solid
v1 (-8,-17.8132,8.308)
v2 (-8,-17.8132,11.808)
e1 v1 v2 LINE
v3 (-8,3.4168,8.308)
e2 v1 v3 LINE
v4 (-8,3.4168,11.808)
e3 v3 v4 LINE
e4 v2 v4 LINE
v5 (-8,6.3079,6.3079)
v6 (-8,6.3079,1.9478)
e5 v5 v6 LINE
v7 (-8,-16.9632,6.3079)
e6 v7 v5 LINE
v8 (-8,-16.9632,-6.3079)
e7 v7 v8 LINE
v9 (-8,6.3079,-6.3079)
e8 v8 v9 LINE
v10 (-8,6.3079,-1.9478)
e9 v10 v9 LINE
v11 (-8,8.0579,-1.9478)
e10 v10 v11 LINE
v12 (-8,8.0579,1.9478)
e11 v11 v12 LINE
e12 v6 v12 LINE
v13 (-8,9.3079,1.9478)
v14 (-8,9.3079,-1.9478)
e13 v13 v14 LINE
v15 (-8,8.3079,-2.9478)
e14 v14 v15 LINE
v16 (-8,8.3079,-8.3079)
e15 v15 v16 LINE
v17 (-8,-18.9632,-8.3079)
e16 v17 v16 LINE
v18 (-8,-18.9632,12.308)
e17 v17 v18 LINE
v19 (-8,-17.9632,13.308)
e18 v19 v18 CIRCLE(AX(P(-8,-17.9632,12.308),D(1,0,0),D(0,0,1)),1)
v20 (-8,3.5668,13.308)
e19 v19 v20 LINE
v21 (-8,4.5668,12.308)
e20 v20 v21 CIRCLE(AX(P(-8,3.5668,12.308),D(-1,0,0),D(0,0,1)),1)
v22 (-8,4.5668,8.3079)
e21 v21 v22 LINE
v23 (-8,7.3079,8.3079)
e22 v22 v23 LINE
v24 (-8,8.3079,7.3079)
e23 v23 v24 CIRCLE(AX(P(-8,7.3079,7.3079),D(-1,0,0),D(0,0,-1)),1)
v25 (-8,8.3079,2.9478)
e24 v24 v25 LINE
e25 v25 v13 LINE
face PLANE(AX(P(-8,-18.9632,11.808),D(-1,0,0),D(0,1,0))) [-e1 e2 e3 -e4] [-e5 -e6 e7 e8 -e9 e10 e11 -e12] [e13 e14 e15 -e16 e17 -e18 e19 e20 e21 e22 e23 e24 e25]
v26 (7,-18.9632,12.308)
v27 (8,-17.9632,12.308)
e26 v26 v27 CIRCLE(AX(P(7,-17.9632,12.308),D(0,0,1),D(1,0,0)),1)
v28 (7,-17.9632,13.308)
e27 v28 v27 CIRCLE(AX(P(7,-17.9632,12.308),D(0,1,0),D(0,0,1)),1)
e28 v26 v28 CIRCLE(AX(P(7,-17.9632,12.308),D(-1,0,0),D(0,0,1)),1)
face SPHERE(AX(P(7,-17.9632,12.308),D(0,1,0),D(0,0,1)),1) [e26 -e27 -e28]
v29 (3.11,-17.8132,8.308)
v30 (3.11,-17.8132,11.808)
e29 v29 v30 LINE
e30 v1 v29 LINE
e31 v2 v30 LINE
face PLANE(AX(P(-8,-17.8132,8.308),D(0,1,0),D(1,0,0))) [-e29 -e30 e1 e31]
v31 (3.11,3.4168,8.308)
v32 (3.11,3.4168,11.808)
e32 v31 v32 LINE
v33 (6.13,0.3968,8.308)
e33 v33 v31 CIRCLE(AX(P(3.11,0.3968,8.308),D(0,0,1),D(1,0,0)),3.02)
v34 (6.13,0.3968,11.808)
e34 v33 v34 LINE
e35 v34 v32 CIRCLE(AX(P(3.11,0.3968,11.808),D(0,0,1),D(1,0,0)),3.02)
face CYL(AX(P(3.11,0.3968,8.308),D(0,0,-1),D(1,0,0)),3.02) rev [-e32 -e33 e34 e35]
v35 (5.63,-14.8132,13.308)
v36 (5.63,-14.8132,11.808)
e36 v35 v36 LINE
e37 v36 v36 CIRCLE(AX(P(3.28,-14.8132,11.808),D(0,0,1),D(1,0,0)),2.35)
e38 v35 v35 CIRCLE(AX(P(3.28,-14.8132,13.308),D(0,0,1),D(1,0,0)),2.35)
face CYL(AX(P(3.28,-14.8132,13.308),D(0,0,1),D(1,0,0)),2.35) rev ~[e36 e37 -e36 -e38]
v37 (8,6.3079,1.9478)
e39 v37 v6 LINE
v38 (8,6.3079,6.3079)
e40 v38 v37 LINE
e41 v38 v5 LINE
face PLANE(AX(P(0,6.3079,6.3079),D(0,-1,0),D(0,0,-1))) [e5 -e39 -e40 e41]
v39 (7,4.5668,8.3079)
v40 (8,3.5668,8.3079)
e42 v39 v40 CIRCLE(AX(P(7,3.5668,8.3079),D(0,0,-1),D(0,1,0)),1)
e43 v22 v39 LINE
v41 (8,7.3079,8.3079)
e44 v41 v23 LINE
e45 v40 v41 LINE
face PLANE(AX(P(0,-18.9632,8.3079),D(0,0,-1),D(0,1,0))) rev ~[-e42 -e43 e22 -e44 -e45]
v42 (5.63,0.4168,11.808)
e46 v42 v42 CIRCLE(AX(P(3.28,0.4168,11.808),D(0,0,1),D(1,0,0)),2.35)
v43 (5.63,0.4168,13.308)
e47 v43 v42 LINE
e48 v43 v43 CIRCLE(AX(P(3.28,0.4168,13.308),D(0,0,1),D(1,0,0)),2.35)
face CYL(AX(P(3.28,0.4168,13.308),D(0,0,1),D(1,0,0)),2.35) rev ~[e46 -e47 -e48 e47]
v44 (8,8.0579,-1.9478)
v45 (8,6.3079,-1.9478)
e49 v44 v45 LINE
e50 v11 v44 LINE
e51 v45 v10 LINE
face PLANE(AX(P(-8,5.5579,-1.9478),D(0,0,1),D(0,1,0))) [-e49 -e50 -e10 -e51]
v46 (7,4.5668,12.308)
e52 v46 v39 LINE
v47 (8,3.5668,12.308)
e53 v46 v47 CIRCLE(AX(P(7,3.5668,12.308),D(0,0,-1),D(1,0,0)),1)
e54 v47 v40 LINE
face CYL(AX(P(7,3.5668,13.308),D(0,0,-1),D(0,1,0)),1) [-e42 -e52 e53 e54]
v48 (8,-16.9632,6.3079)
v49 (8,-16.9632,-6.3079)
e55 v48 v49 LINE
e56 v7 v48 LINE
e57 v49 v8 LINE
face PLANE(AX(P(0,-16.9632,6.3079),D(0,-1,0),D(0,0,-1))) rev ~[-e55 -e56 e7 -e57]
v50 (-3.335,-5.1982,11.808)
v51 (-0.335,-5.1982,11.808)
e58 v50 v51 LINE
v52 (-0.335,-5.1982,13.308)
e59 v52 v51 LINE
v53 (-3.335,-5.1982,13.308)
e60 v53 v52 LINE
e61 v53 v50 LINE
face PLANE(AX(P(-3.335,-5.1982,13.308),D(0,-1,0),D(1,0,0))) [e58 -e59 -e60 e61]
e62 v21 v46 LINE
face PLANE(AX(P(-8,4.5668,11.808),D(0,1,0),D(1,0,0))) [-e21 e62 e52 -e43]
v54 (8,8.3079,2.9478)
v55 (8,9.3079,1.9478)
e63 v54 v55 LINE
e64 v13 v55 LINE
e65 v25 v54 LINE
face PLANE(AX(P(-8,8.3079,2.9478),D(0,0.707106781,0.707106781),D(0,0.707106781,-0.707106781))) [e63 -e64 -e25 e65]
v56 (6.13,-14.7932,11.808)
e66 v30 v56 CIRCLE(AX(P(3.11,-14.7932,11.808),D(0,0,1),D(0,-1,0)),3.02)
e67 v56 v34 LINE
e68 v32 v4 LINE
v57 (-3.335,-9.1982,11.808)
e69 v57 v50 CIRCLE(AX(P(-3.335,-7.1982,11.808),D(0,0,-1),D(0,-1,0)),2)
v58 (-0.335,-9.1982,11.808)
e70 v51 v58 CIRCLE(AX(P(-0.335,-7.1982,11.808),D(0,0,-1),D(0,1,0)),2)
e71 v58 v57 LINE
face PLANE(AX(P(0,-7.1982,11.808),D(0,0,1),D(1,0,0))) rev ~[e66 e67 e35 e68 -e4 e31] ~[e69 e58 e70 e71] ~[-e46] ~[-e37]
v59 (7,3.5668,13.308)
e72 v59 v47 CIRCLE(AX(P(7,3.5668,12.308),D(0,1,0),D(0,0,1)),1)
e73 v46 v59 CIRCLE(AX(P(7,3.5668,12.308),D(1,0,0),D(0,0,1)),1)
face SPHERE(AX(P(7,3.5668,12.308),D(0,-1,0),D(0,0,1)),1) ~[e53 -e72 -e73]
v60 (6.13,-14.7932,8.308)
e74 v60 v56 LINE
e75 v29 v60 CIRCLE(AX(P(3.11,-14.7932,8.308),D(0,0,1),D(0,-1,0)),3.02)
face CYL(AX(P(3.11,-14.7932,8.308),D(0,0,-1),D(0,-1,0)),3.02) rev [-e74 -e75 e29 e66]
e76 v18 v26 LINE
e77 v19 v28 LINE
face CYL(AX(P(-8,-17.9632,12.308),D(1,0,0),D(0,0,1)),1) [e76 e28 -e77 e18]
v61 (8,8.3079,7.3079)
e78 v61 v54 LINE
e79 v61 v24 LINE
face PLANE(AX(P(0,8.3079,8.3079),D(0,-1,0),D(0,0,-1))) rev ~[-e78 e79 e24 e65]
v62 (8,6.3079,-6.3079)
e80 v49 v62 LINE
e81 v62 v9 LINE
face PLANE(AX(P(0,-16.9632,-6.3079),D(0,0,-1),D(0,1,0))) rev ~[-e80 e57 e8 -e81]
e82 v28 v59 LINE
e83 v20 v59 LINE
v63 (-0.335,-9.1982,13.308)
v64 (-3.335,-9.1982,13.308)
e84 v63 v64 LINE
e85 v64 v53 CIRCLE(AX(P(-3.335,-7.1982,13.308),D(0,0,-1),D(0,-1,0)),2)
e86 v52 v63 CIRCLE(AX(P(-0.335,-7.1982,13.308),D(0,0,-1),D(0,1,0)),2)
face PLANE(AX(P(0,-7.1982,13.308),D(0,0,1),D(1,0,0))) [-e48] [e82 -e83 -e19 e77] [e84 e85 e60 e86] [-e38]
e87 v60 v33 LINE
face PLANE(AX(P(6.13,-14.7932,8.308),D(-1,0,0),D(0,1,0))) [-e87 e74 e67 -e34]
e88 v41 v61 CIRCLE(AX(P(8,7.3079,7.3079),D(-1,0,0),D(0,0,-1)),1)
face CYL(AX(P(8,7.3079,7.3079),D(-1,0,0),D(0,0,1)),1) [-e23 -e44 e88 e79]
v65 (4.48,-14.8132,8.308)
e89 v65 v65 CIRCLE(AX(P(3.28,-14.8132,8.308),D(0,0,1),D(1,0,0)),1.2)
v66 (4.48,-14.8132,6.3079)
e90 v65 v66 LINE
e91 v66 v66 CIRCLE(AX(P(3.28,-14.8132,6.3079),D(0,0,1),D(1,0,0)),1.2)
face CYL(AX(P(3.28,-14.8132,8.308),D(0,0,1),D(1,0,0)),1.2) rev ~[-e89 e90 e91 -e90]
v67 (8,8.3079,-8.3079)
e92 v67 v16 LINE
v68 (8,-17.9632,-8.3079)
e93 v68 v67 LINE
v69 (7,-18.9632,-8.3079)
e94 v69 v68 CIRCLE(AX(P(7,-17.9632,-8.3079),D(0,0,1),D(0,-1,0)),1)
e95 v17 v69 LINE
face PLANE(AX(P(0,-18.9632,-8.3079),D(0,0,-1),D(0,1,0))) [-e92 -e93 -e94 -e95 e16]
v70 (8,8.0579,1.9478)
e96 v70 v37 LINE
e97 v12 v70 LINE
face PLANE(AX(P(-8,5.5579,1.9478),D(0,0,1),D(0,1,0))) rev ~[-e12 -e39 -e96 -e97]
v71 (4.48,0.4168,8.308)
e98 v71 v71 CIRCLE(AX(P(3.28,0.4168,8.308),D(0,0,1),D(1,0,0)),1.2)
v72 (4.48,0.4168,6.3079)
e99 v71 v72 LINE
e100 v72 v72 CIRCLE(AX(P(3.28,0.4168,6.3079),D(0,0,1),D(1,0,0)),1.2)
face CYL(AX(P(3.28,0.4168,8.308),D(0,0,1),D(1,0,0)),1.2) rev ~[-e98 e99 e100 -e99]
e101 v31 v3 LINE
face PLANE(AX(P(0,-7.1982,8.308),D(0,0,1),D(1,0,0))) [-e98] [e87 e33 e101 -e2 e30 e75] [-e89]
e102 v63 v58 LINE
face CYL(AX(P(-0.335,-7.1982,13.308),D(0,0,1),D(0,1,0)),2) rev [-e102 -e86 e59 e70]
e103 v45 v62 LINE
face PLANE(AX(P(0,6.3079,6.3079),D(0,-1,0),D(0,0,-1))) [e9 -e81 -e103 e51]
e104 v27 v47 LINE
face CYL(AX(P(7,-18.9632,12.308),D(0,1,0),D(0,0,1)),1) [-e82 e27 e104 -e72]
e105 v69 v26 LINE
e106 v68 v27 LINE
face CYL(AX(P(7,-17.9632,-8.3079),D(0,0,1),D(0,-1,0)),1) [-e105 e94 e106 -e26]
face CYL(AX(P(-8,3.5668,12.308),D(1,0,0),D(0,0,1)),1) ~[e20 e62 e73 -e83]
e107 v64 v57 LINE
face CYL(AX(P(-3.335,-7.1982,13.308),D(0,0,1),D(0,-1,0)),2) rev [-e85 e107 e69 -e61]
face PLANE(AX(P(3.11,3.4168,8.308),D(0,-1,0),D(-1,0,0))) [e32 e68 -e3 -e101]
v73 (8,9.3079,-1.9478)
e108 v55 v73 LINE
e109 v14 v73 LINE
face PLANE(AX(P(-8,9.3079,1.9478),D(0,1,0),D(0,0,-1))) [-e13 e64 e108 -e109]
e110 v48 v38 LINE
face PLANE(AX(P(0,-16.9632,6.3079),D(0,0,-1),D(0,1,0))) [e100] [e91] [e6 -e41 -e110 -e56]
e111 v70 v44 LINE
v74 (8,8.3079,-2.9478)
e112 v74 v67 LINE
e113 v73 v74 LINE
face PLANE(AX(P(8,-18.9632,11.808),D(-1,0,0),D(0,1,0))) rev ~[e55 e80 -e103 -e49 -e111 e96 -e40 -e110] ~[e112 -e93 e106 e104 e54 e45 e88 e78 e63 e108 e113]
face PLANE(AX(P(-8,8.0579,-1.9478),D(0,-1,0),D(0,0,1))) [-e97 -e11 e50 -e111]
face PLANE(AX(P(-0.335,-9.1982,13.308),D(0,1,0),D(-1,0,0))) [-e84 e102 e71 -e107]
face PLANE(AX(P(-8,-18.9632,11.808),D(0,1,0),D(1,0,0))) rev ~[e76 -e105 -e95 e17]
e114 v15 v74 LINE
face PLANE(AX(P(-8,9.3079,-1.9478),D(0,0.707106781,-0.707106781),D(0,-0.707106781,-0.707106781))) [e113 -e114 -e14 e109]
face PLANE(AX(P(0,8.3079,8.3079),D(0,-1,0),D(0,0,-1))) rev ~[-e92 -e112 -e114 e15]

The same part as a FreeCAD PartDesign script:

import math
import FreeCAD as App
import Part
import Sketcher
from FreeCAD import Vector


def edges_at(feature, points):
    """Names of the edges that pass closest to the given points."""
    edges = feature.Shape.Edges
    near = lambda p: min(range(len(edges)), key=lambda i: edges[i].distToShape(Part.Vertex(*p))[0])
    return sorted({f"Edge{near(p) + 1}" for p in points})


def add_polygon(sketch, points):
    """Adds a closed chain of lines whose ends are joined by coincident constraints."""
    first, n = sketch.GeometryCount, len(points)
    for a, b in zip(points, points[1:] + points[:1]):
        sketch.addGeometry(Part.LineSegment(App.Vector(*a, 0), App.Vector(*b, 0)), False)
    for i in range(n):
        sketch.addConstraint(Sketcher.Constraint("Coincident", first + i, 2, first + (i + 1) % n, 1))

doc = App.newDocument("Part")
body = doc.addObject("PartDesign::Body", "Body")

sketch1 = doc.addObject("Sketcher::SketchObject", "Sketch")
body.addObject(sketch1)
sketch1.AttachmentSupport = (doc.YZ_Plane, [""])
sketch1.MapMode = "FlatFace"
add_polygon(sketch1, [(8, 8), (-19, 8), (-19, -8), (8, -8)])
add_polygon(sketch1, [(-17, -6), (-17, 6), (6, 6), (6, -6)])
sketch1.addConstraint([
    Sketcher.Constraint("Horizontal", 0),
    Sketcher.Constraint("Vertical", 1),
    Sketcher.Constraint("Horizontal", 2),
    Sketcher.Constraint("Vertical", 3),
    Sketcher.Constraint("Vertical", 4),
    Sketcher.Constraint("Horizontal", 5),
    Sketcher.Constraint("Vertical", 6),
    Sketcher.Constraint("Horizontal", 7),
    Sketcher.Constraint("DistanceX", 0, 2, 4, 2, 2.0),
    Sketcher.Constraint("DistanceY", 4, 2, 0, 2, 2.0),
    Sketcher.Constraint("DistanceX", 5, 2, 3, 2, 2.0),
    Sketcher.Constraint("DistanceY", 2, 2, 6, 2, 2.0),
    Sketcher.Constraint("DistanceX", 0, 2, 0, 1, 27.2711),
    Sketcher.Constraint("DistanceY", 1, 2, 1, 1, 16.6158),
    Sketcher.Constraint("DistanceX", 0, 2, -1, 1, 18.9632),
    Sketcher.Constraint("DistanceY", -1, 1, 0, 2, 8.3079),
])
pad1 = doc.addObject("PartDesign::Pad", "Pad")
body.addObject(pad1)
pad1.Profile = sketch1
pad1.Length = 16
pad1.Midplane = True

sketch2 = doc.addObject("Sketcher::SketchObject", "Sketch001")
body.addObject(sketch2)
sketch2.AttachmentSupport = (doc.YZ_Plane, [""])
sketch2.MapMode = "FlatFace"
sketch2.AttachmentOffset = App.Placement(Vector(0, 0, -8), App.Rotation())
add_polygon(sketch2, [(8.1, -1.9), (5.6, -1.9), (5.6, 1.9), (8.1, 1.9)])
sketch2.addConstraint([
    Sketcher.Constraint("Horizontal", 0),
    Sketcher.Constraint("Vertical", 1),
    Sketcher.Constraint("Horizontal", 2),
    Sketcher.Constraint("Vertical", 3),
    Sketcher.Constraint("DistanceX", 0, 2, 0, 1, 2.5),
    Sketcher.Constraint("DistanceY", 1, 1, 1, 2, 3.8956),
    Sketcher.Constraint("DistanceX", -1, 1, 0, 2, 5.5579),
    Sketcher.Constraint("DistanceY", 0, 2, -1, 1, 1.9478),
])
pocket1 = doc.addObject("PartDesign::Pocket", "Pocket")
body.addObject(pocket1)
pocket1.Profile = sketch2
pocket1.Type = "ThroughAll"
pocket1.Reversed = True

sketch3 = doc.addObject("Sketcher::SketchObject", "Sketch002")
body.addObject(sketch3)
sketch3.AttachmentSupport = (doc.XY_Plane, [""])
sketch3.MapMode = "FlatFace"
sketch3.AttachmentOffset = App.Placement(Vector(0, 0, 8.3079), App.Rotation())
add_polygon(sketch3, [(-8, 5), (-8, -19), (8, -19), (8, 5)])
sketch3.addConstraint([
    Sketcher.Constraint("Vertical", 0),
    Sketcher.Constraint("Horizontal", 1),
    Sketcher.Constraint("Vertical", 2),
    Sketcher.Constraint("Horizontal", 3),
    Sketcher.Constraint("DistanceX", 1, 1, 1, 2, 16.0),
    Sketcher.Constraint("DistanceX", 0, 2, -1, 1, 8.0),
    Sketcher.Constraint("DistanceY", 0, 2, 0, 1, 23.53),
    Sketcher.Constraint("DistanceY", 0, 2, -1, 1, 18.9632),
])
pad2 = doc.addObject("PartDesign::Pad", "Pad001")
body.addObject(pad2)
pad2.Profile = sketch3
pad2.Length = 0.0001

sketch4 = doc.addObject("Sketcher::SketchObject", "Sketch003")
body.addObject(sketch4)
sketch4.AttachmentSupport = (doc.XY_Plane, [""])
sketch4.MapMode = "FlatFace"
sketch4.AttachmentOffset = App.Placement(Vector(0, 0, 8.308), App.Rotation())
sketch4.addGeometry(Part.Circle(Vector(3.3, 0.4, 0), Vector(0, 0, 1), 1.2), False)
sketch4.addConstraint([
    Sketcher.Constraint("Diameter", 0, 2.4),
    Sketcher.Constraint("DistanceX", -1, 1, 0, 3, 3.28),
    Sketcher.Constraint("DistanceY", -1, 1, 0, 3, 0.4168),
])
pocket2 = doc.addObject("PartDesign::Pocket", "Pocket001")
body.addObject(pocket2)
pocket2.Profile = sketch4
pocket2.Type = "UpToFirst"

sketch5 = doc.addObject("Sketcher::SketchObject", "Sketch004")
body.addObject(sketch5)
sketch5.AttachmentSupport = (doc.XY_Plane, [""])
sketch5.MapMode = "FlatFace"
sketch5.AttachmentOffset = App.Placement(Vector(0, 0, 8.308), App.Rotation())
sketch5.addGeometry(Part.Circle(Vector(3.3, -14.8, 0), Vector(0, 0, 1), 1.2), False)
sketch5.addConstraint([
    Sketcher.Constraint("Diameter", 0, 2.4),
    Sketcher.Constraint("DistanceX", -1, 1, 0, 3, 3.28),
    Sketcher.Constraint("DistanceY", 0, 3, -1, 1, 14.8132),
])
pocket3 = doc.addObject("PartDesign::Pocket", "Pocket002")
body.addObject(pocket3)
pocket3.Profile = sketch5
pocket3.Type = "UpToFirst"

sketch6 = doc.addObject("Sketcher::SketchObject", "Sketch005")
body.addObject(sketch6)
sketch6.AttachmentSupport = (doc.XY_Plane, [""])
sketch6.MapMode = "FlatFace"
sketch6.AttachmentOffset = App.Placement(Vector(0, 0, 8.308), App.Rotation())
sketch6.addGeometry([
    Part.LineSegment(Vector(3.1, -17.8, 0), Vector(-8, -17.8, 0)),
    Part.LineSegment(Vector(-8, -17.8, 0), Vector(-8, -19, 0)),
    Part.LineSegment(Vector(-8, -19, 0), Vector(8, -19, 0)),
    Part.LineSegment(Vector(8, -19, 0), Vector(8, 4.6, 0)),
    Part.LineSegment(Vector(8, 4.6, 0), Vector(-8, 4.6, 0)),
    Part.LineSegment(Vector(-8, 4.6, 0), Vector(-8, 3.4, 0)),
    Part.LineSegment(Vector(-8, 3.4, 0), Vector(3.1, 3.4, 0)),
    Part.ArcOfCircle(Part.Circle(Vector(3.1, 0.4, 0), Vector(0, 0, 1), 3), math.radians(0), math.radians(90)),
    Part.LineSegment(Vector(6.1, 0.4, 0), Vector(6.1, -14.8, 0)),
    Part.ArcOfCircle(Part.Circle(Vector(3.1, -14.8, 0), Vector(0, 0, 1), 3), math.radians(-90), math.radians(0)),
], False)
sketch6.addConstraint([
    Sketcher.Constraint("Coincident", 0, 2, 1, 1),
    Sketcher.Constraint("Coincident", 1, 2, 2, 1),
    Sketcher.Constraint("Coincident", 2, 2, 3, 1),
    Sketcher.Constraint("Coincident", 3, 2, 4, 1),
    Sketcher.Constraint("Coincident", 4, 2, 5, 1),
    Sketcher.Constraint("Coincident", 5, 2, 6, 1),
    Sketcher.Constraint("Tangent", 6, 2, 7, 2),
    Sketcher.Constraint("Tangent", 7, 1, 8, 1),
    Sketcher.Constraint("Tangent", 8, 2, 9, 2),
    Sketcher.Constraint("Tangent", 9, 1, 0, 1),
    Sketcher.Constraint("Horizontal", 0),
    Sketcher.Constraint("Vertical", 1),
    Sketcher.Constraint("Horizontal", 2),
    Sketcher.Constraint("Vertical", 3),
    Sketcher.Constraint("Horizontal", 4),
    Sketcher.Constraint("Vertical", 5),
    Sketcher.Constraint("Horizontal", 6),
    Sketcher.Constraint("Vertical", 8),
    Sketcher.Constraint("Equal", 7, 9),
    Sketcher.Constraint("Vertical", 1, 2, 4, 2),
    Sketcher.Constraint("Equal", 1, 5),
    Sketcher.Constraint("DistanceX", 2, 1, 2, 2, 16.0),
    Sketcher.Constraint("Radius", 7, 3.02),
    Sketcher.Constraint("DistanceX", 0, 2, -1, 1, 8.0),
    Sketcher.Constraint("DistanceX", 0, 2, 0, 1, 11.11),
    Sketcher.Constraint("DistanceY", 1, 2, 1, 1, 1.15),
    Sketcher.Constraint("DistanceY", 3, 1, 3, 2, 23.53),
    Sketcher.Constraint("DistanceY", -1, 1, 7, 3, 0.3968),
])
pad3 = doc.addObject("PartDesign::Pad", "Pad002")
body.addObject(pad3)
pad3.Profile = sketch6
pad3.Length = 3.5

sketch7 = doc.addObject("Sketcher::SketchObject", "Sketch006")
body.addObject(sketch7)
sketch7.AttachmentSupport = (doc.XY_Plane, [""])
sketch7.MapMode = "FlatFace"
sketch7.AttachmentOffset = App.Placement(Vector(0, 0, 11.808), App.Rotation())
add_polygon(sketch7, [(-8, 5), (-8, -19), (8, -19), (8, 5)])
sketch7.addConstraint([
    Sketcher.Constraint("Vertical", 0),
    Sketcher.Constraint("Horizontal", 1),
    Sketcher.Constraint("Vertical", 2),
    Sketcher.Constraint("Horizontal", 3),
    Sketcher.Constraint("DistanceX", 1, 1, 1, 2, 16.0),
    Sketcher.Constraint("DistanceX", 0, 2, -1, 1, 8.0),
    Sketcher.Constraint("DistanceY", 0, 2, 0, 1, 23.53),
    Sketcher.Constraint("DistanceY", 0, 2, -1, 1, 18.9632),
])
pad4 = doc.addObject("PartDesign::Pad", "Pad003")
body.addObject(pad4)
pad4.Profile = sketch7
pad4.Length = 1.5

sketch8 = doc.addObject("Sketcher::SketchObject", "Sketch007")
body.addObject(sketch8)
sketch8.AttachmentSupport = (doc.XY_Plane, [""])
sketch8.MapMode = "FlatFace"
sketch8.AttachmentOffset = App.Placement(Vector(0, 0, 13.308), App.Rotation())
sketch8.addGeometry([
    Part.Circle(Vector(3.3, 0.4, 0), Vector(0, 0, 1), 2.4),
    Part.Circle(Vector(3.3, -14.8, 0), Vector(0, 0, 1), 2.4),
    Part.LineSegment(Vector(-0.3, -5.2, 0), Vector(-3.3, -5.2, 0)),
    Part.ArcOfCircle(Part.Circle(Vector(-3.3, -7.2, 0), Vector(0, 0, 1), 2), math.radians(90), math.radians(270)),
    Part.LineSegment(Vector(-3.3, -9.2, 0), Vector(-0.3, -9.2, 0)),
    Part.ArcOfCircle(Part.Circle(Vector(-0.3, -7.2, 0), Vector(0, 0, 1), 2), math.radians(-90), math.radians(90)),
], False)
sketch8.addConstraint([
    Sketcher.Constraint("Tangent", 2, 2, 3, 1),
    Sketcher.Constraint("Tangent", 3, 2, 4, 1),
    Sketcher.Constraint("Tangent", 4, 2, 5, 1),
    Sketcher.Constraint("Tangent", 5, 2, 2, 1),
    Sketcher.Constraint("Horizontal", 2),
    Sketcher.Constraint("Horizontal", 4),
    Sketcher.Constraint("Equal", 0, 1),
    Sketcher.Constraint("Vertical", 0, 3, 1, 3),
    Sketcher.Constraint("Radius", 3, 2.0),
    Sketcher.Constraint("Diameter", 0, 4.7),
    Sketcher.Constraint("DistanceX", 2, 2, 2, 1, 3.0),
    Sketcher.Constraint("DistanceX", -1, 1, 0, 3, 3.28),
    Sketcher.Constraint("DistanceY", 1, 3, 0, 3, 15.23),
    Sketcher.Constraint("DistanceX", 3, 3, -1, 1, 3.335),
    Sketcher.Constraint("DistanceY", 3, 3, 0, 3, 7.615),
    Sketcher.Constraint("DistanceY", -1, 1, 0, 3, 0.4168),
])
pocket4 = doc.addObject("PartDesign::Pocket", "Pocket003")
body.addObject(pocket4)
pocket4.Profile = sketch8
pocket4.Length = 1.5
doc.recompute()

fillet = doc.addObject("PartDesign::Fillet", "Fillet")
body.addObject(fillet)
fillet.Base = (pocket4, edges_at(pocket4, [
    (8, -7.198, 13.308),
    (0, 4.567, 13.308),
    (0, -18.963, 13.308),
    (8, -18.963, 2.5),
    (0, 8.308, 8.308),
    (8, 4.567, 10.808),
]))
fillet.Radius = 1

sketch9 = doc.addObject("Sketcher::SketchObject", "Sketch008")
body.addObject(sketch9)
sketch9.AttachmentSupport = (doc.YZ_Plane, [""])
sketch9.MapMode = "FlatFace"
sketch9.AttachmentOffset = App.Placement(Vector(0, 0, -8), App.Rotation())
add_polygon(sketch9, [(8.3, 2.9), (9.3, 1.9), (9.3, -1.9), (8.3, -2.9)])
sketch9.addConstraint([
    Sketcher.Constraint("Vertical", 1),
    Sketcher.Constraint("Vertical", 3),
    Sketcher.Constraint("Perpendicular", 0, 2),
    Sketcher.Constraint("Equal", 0, 2),
    Sketcher.Constraint("DistanceX", 2, 2, 1, 2, 1.0),
    Sketcher.Constraint("DistanceY", 1, 2, 1, 1, 3.8956),
    Sketcher.Constraint("DistanceX", -1, 1, 0, 2, 9.3079),
    Sketcher.Constraint("DistanceY", -1, 1, 0, 2, 1.9478),
])
pad5 = doc.addObject("PartDesign::Pad", "Pad004")
body.addObject(pad5)
pad5.Profile = sketch9
pad5.Length = 16

doc.recompute()
